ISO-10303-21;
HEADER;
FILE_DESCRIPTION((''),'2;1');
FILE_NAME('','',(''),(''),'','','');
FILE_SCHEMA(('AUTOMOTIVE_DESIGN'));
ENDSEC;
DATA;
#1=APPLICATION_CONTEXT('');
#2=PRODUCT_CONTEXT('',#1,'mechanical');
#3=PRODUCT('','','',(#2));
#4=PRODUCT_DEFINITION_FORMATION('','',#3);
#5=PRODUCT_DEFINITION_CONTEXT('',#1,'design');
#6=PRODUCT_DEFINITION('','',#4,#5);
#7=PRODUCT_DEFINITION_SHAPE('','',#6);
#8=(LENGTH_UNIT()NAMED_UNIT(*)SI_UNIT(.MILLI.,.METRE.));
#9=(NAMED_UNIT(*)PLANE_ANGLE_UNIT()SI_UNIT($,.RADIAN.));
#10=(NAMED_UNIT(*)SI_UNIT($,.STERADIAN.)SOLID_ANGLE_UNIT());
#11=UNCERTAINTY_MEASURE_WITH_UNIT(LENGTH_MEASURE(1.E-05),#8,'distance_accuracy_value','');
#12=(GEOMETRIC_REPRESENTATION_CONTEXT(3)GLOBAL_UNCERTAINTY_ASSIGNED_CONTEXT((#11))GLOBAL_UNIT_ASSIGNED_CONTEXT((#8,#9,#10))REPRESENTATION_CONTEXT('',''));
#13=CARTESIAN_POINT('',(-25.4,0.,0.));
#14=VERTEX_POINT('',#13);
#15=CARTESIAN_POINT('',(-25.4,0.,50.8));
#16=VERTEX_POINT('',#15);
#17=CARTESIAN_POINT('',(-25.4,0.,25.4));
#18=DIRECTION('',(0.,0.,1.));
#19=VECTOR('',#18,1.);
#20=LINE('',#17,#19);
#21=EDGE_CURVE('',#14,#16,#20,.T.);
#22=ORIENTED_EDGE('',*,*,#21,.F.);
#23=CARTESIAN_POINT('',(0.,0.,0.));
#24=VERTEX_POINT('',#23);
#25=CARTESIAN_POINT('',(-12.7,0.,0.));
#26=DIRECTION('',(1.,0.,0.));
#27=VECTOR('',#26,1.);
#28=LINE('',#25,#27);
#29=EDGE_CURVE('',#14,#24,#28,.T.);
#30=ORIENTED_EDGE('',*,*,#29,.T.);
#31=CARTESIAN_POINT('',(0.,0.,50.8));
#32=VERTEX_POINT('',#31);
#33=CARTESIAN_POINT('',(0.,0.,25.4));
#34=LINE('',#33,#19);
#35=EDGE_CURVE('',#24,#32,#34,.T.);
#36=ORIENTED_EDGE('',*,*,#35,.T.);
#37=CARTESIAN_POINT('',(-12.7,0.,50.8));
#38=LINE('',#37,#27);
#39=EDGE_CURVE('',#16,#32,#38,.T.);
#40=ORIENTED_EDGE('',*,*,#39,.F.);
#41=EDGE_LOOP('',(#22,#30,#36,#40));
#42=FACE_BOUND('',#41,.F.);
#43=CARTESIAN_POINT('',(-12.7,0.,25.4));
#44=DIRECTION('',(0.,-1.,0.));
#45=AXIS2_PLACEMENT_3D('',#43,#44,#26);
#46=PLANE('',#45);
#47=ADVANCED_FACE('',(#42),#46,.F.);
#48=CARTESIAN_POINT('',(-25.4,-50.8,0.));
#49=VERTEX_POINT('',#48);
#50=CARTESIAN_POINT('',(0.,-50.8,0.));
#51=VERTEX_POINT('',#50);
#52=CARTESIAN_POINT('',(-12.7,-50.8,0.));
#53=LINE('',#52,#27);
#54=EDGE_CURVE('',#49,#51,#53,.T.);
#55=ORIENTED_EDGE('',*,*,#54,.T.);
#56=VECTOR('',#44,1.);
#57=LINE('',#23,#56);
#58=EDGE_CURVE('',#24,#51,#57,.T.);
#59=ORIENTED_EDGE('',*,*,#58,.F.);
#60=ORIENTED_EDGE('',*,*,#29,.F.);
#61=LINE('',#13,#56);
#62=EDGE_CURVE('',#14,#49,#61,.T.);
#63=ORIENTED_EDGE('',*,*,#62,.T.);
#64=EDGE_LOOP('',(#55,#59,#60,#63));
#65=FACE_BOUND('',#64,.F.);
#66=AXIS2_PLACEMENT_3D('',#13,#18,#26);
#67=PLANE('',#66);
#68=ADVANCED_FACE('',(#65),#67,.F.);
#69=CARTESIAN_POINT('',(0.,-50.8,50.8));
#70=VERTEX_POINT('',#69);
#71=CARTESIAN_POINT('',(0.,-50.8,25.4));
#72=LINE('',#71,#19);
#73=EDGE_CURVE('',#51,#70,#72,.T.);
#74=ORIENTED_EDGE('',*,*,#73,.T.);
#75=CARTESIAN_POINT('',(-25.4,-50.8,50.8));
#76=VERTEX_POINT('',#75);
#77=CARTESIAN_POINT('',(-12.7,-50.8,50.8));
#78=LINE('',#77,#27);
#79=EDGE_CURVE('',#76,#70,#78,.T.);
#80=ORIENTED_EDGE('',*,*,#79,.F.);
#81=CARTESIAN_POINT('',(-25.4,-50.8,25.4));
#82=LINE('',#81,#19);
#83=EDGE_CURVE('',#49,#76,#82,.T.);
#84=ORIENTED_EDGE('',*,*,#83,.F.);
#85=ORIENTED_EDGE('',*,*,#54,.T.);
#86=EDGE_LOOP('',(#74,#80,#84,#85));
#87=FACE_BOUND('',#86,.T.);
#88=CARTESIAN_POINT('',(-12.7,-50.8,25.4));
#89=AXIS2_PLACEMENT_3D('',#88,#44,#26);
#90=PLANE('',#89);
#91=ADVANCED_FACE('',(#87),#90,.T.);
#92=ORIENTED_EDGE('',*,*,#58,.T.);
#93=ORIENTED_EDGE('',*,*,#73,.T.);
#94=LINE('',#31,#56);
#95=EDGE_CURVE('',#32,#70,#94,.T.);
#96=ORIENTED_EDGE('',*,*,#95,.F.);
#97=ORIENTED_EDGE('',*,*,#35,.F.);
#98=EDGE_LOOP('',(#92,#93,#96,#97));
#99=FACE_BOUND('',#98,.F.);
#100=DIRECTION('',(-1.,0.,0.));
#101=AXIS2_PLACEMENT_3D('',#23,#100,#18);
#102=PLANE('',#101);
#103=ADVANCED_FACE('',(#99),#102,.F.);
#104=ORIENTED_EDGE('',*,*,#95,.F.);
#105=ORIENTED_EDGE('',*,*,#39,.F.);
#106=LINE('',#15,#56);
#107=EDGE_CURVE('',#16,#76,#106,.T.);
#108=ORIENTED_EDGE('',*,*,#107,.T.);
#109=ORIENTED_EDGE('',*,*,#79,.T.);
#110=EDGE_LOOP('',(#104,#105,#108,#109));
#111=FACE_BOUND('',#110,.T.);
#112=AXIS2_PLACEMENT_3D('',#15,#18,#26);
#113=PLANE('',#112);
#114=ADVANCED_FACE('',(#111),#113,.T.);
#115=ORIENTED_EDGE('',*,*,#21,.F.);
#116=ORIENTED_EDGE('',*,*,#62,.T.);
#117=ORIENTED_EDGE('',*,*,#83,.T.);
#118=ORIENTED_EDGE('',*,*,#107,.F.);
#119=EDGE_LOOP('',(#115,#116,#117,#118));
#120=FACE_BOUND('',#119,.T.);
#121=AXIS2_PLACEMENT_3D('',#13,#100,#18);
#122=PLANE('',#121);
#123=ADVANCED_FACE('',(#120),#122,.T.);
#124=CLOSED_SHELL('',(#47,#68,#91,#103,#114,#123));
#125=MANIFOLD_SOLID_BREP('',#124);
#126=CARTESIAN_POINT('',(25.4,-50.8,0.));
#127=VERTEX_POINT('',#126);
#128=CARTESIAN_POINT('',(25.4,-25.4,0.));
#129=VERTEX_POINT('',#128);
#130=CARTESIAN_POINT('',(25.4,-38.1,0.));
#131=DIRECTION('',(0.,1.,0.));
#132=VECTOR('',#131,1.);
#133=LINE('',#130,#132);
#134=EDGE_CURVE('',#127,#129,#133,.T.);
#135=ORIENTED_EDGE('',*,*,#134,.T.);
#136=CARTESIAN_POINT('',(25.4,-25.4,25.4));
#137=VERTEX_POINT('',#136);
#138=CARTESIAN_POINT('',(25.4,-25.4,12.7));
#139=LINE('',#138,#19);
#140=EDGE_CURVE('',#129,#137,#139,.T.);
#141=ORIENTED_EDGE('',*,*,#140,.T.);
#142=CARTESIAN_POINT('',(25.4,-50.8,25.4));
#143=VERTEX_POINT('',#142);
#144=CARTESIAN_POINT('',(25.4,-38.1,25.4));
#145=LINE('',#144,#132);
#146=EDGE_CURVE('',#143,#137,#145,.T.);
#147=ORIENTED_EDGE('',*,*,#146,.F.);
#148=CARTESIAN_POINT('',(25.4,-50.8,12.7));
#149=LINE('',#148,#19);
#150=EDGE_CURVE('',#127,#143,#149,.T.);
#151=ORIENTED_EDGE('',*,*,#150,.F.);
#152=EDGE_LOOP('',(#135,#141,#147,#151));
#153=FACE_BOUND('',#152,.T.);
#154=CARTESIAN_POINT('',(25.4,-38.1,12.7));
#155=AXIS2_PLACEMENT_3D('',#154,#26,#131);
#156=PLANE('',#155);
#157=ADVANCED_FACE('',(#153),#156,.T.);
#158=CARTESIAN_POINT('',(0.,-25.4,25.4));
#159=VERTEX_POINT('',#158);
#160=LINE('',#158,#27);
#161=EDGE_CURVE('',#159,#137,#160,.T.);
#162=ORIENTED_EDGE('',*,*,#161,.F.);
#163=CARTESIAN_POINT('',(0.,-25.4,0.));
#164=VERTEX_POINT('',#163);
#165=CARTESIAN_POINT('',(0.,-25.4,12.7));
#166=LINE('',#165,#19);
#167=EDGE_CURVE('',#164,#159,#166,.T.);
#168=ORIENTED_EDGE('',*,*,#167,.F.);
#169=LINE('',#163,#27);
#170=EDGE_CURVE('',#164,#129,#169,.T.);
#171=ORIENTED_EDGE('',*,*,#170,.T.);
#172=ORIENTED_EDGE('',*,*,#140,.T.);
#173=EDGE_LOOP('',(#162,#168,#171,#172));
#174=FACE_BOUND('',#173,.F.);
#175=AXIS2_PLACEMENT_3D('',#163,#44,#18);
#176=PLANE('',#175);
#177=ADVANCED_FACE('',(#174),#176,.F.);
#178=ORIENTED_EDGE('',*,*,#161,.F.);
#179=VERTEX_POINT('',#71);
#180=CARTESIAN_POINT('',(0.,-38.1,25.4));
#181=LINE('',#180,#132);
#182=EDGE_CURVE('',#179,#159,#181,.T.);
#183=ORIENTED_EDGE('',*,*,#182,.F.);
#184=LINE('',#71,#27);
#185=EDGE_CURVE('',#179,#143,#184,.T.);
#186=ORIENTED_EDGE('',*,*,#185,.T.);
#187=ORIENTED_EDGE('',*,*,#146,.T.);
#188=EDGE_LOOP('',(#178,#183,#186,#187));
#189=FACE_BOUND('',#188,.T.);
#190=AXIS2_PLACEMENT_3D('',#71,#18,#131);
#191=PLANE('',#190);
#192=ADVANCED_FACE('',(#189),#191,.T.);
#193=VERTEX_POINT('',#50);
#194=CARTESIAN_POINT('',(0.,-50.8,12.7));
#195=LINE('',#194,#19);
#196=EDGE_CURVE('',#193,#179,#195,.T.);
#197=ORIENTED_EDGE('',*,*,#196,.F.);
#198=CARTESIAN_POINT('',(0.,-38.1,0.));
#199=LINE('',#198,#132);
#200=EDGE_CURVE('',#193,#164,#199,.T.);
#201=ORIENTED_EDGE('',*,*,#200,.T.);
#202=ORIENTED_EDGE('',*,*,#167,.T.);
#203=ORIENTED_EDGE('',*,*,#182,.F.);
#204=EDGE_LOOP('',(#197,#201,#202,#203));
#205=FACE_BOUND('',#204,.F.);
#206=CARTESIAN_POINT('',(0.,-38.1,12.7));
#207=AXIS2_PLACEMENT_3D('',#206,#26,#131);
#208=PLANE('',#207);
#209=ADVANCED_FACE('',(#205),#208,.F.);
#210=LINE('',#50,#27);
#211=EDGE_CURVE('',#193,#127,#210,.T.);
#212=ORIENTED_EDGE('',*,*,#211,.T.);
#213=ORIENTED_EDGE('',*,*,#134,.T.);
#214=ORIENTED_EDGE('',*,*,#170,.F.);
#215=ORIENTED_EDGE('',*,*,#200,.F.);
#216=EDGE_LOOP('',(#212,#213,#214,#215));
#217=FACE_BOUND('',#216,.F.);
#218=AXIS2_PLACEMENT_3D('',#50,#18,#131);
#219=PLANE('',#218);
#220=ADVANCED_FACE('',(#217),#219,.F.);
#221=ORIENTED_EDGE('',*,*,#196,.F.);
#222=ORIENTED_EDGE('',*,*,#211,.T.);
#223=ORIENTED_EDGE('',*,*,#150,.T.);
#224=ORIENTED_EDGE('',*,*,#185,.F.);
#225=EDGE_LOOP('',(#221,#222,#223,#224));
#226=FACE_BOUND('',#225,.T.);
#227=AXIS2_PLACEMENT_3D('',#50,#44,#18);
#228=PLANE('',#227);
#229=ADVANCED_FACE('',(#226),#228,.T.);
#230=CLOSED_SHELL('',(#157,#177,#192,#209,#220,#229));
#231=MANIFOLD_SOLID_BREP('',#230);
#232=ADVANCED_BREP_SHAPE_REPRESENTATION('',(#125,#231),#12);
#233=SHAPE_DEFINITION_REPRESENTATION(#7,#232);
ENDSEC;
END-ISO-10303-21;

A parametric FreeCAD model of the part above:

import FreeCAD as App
import Part
import Sketcher
from FreeCAD import Vector
Q = App.Units.Quantity

doc = App.newDocument("Part")
body = doc.addObject("PartDesign::Body", "Body")

# Sketch on XZ plane
sketch1 = body.newObject("Sketcher::SketchObject", "Sketch")
sketch1.AttachmentSupport = (doc.getObject("XZ_Plane"), [""])
sketch1.MapMode = "FlatFace"
sketch1.addGeometry([
    Part.LineSegment(Vector(-25, 51, 0), Vector(-25, 0, 0)),
    Part.LineSegment(Vector(-25, 0, 0), Vector(0, 0, 0)),
    Part.LineSegment(Vector(0, 0, 0), Vector(0, 51, 0)),
    Part.LineSegment(Vector(0, 51, 0), Vector(-25, 51, 0)),
], False)
sketch1.addConstraint([
    Sketcher.Constraint("Coincident", 0, 2, 1, 1),
    Sketcher.Constraint("Coincident", 1, 2, 2, 1),
    Sketcher.Constraint("Coincident", 2, 2, 3, 1),
    Sketcher.Constraint("Coincident", 3, 2, 0, 1),
    Sketcher.Constraint("Vertical", 0),
    Sketcher.Constraint("Horizontal", 1),
    Sketcher.Constraint("Vertical", 2),
    Sketcher.Constraint("Horizontal", 3),
    Sketcher.Constraint("Coincident", 1, 2, -1, 1),
    Sketcher.Constraint("DistanceX", 1, 1, 1, 2, Q("1 in")),
    Sketcher.Constraint("DistanceY", 0, 2, 0, 1, Q("2 in")),
])
pad1 = body.newObject("PartDesign::Pad", "Pad")
pad1.Profile = sketch1
pad1.Length = Q("2 in")
body2 = doc.addObject("PartDesign::Body", "Body001")

# Sketch on YZ plane
sketch2 = body2.newObject("Sketcher::SketchObject", "Sketch001")
sketch2.AttachmentSupport = (doc.getObject("YZ_Plane001"), [""])
sketch2.MapMode = "FlatFace"
sketch2.addGeometry([
    Part.LineSegment(Vector(-51, 25, 0), Vector(-51, 0, 0)),
    Part.LineSegment(Vector(-51, 0, 0), Vector(-25, 0, 0)),
    Part.LineSegment(Vector(-25, 0, 0), Vector(-25, 25, 0)),
    Part.LineSegment(Vector(-25, 25, 0), Vector(-51, 25, 0)),
], False)
sketch2.addConstraint([
    Sketcher.Constraint("Coincident", 0, 2, 1, 1),
    Sketcher.Constraint("Coincident", 1, 2, 2, 1),
    Sketcher.Constraint("Coincident", 2, 2, 3, 1),
    Sketcher.Constraint("Coincident", 3, 2, 0, 1),
    Sketcher.Constraint("Vertical", 0),
    Sketcher.Constraint("Horizontal", 1),
    Sketcher.Constraint("Vertical", 2),
    Sketcher.Constraint("Horizontal", 3),
    Sketcher.Constraint("PointOnObject", 0, 2, -1),
    Sketcher.Constraint("Equal", 3, 0),
    Sketcher.Constraint("DistanceX", 1, 1, 1, 2, Q("1 in")),
    Sketcher.Constraint("DistanceX", 0, 2, -1, 1, Q("2 in")),
])
pad2 = body2.newObject("PartDesign::Pad", "Pad001")
pad2.Profile = sketch2
pad2.Length = Q("1 in")

doc.recompute()
